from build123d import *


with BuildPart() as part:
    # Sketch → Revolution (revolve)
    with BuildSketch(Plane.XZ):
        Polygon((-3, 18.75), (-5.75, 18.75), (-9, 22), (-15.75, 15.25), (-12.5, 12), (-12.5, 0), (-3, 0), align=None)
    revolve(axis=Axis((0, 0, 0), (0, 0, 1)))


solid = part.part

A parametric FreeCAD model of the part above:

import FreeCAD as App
import Part
import Sketcher
Q = App.Units.Quantity


def add_polygon(sketch, points):
    """Adds a closed chain of lines whose ends are joined by coincident constraints."""
    first, n = sketch.GeometryCount, len(points)
    for a, b in zip(points, points[1:] + points[:1]):
        sketch.addGeometry(Part.LineSegment(App.Vector(*a, 0), App.Vector(*b, 0)), False)
    for i in range(n):
        sketch.addConstraint(Sketcher.Constraint("Coincident", first + i, 2, first + (i + 1) % n, 1))

doc = App.newDocument("Part")
params = doc.addObject("Spreadsheet::Sheet", "Params")
for row, (alias, value) in enumerate([
    ("sketch1_height", "12 mm"),
    ("sketch1_width", "9.5 mm"),
    ("revolution_angle", "360 deg"),
], start=1):
    params.set(f"A{row}", alias)
    params.set(f"B{row}", "=" + value)
    params.setAlias(f"B{row}", alias)

body = doc.addObject("PartDesign::Body", "Body")

sketch1 = doc.addObject("Sketcher::SketchObject", "Sketch")
body.addObject(sketch1)
sketch1.AttachmentSupport = (doc.XZ_Plane, [""])
sketch1.MapMode = "FlatFace"
add_polygon(sketch1, [(-3, 18.75), (-5.75, 18.75), (-9, 22), (-15.75, 15.25), (-12.5, 12), (-12.5, 0), (-3, 0)])
sketch1.addConstraint(Sketcher.Constraint("Horizontal", 0))
sketch1.addConstraint(Sketcher.Constraint("Vertical", 4))
sketch1.addConstraint(Sketcher.Constraint("Horizontal", 5))
sketch1.addConstraint(Sketcher.Constraint("Vertical", 6))
sketch1.addConstraint(Sketcher.Constraint("PointOnObject", 4, 2, -1))
sketch1.addConstraint(Sketcher.Constraint("Perpendicular", 1, 2))
sketch1.addConstraint(Sketcher.Constraint("Perpendicular", 2, 3))
sketch1.addConstraint(Sketcher.Constraint("Equal", 1, 3))
sketch1.addConstraint(Sketcher.Constraint("DistanceY", 4, 2, 4, 1, 12.0))
sketch1.addConstraint(Sketcher.Constraint("Angle", 1, Q("135 deg")))
sketch1.addConstraint(Sketcher.Constraint("DistanceX", 5, 1, 5, 2, 9.5))
sketch1.addConstraint(Sketcher.Constraint("DistanceX", 1, 2, -1, 1, 9.0))
sketch1.addConstraint(Sketcher.Constraint("DistanceY", -1, 1, 1, 2, 22.0))
sketch1.addConstraint(Sketcher.Constraint("DistanceX", 5, 2, -1, 1, 3.0))
sketch1.setExpression("Constraints[15]", "Params.sketch1_height")
sketch1.setExpression("Constraints[17]", "Params.sketch1_width")
revolution = doc.addObject("PartDesign::Revolution", "Revolution")
body.addObject(revolution)
revolution.Profile = sketch1
revolution.ReferenceAxis = (sketch1, ["V_Axis"])
revolution.setExpression("Angle", "Params.revolution_angle")

doc.recompute()
